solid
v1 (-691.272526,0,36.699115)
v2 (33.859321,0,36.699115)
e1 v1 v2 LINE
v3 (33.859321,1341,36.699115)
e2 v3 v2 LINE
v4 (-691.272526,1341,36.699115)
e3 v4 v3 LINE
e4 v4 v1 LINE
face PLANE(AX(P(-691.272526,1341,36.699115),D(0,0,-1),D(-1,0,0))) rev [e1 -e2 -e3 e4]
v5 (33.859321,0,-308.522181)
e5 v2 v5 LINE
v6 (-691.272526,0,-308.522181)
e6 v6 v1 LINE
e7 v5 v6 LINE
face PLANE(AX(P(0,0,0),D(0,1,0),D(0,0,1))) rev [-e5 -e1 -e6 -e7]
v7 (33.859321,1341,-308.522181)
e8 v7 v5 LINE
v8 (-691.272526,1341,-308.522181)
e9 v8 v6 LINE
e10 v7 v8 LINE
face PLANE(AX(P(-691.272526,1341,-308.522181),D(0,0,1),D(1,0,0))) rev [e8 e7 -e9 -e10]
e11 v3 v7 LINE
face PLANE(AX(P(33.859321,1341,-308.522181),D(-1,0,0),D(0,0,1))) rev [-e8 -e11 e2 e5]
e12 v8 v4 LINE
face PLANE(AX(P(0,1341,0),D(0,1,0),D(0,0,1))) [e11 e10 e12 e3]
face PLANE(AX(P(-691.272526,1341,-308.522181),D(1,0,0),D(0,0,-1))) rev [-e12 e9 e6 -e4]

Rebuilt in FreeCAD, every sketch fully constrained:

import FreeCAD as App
import Part
import Sketcher

V = App.Vector
Q = App.Units.Quantity

doc = App.newDocument("Part")
body = doc.addObject("PartDesign::Body", "Body")

# Sketch on XZ plane
sketch1 = body.newObject("Sketcher::SketchObject", "Sketch")
sketch1.AttachmentSupport = (doc.getObject("XZ_Plane"), [""])
sketch1.MapMode = "FlatFace"
sketch1.addGeometry([
    Part.LineSegment(V(-691.272526, -308.522181, 0), V(-691.272526, 36.699115, 0)),
    Part.LineSegment(V(-691.272526, 36.699115, 0), V(33.859321, 36.699115, 0)),
    Part.LineSegment(V(33.859321, 36.699115, 0), V(33.859321, -308.522181, 0)),
    Part.LineSegment(V(33.859321, -308.522181, 0), V(-691.272526, -308.522181, 0)),
], False)
sketch1.addConstraint([
    Sketcher.Constraint("Coincident", 0, 2, 1, 1),
    Sketcher.Constraint("Coincident", 1, 2, 2, 1),
    Sketcher.Constraint("Coincident", 2, 2, 3, 1),
    Sketcher.Constraint("Coincident", 3, 2, 0, 1),
    Sketcher.Constraint("Vertical", 0),
    Sketcher.Constraint("Horizontal", 1),
    Sketcher.Constraint("Vertical", 2),
    Sketcher.Constraint("Horizontal", 3),
    Sketcher.Constraint("DistanceX", 1, 1, 1, 2, Q("725.131848 mm")),
    Sketcher.Constraint("DistanceY", 0, 1, 0, 2, Q("345.221297 mm")),
    Sketcher.Constraint("DistanceX", -1, 1, 1, 2, Q("33.859321 mm")),
    Sketcher.Constraint("DistanceY", 2, 2, -1, 1, Q("308.522181 mm")),
])
pad1 = body.newObject("PartDesign::Pad", "Pad")
pad1.Profile = sketch1
pad1.Length = 1341
pad1.Reversed = True

doc.recompute()
